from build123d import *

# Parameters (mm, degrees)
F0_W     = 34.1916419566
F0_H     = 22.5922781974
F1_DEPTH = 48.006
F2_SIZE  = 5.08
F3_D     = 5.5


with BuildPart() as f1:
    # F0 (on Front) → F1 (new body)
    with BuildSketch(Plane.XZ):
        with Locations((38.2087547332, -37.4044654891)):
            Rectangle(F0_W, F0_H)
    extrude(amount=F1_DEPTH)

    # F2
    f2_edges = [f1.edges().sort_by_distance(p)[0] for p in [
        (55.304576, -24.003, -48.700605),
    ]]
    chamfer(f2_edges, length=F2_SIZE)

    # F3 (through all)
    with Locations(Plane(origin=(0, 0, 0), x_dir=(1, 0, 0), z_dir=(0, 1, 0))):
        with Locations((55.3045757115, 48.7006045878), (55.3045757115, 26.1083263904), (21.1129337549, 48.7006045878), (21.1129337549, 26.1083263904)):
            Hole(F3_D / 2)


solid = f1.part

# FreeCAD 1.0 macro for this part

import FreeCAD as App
import Part
import Sketcher
from FreeCAD import Vector
Q = App.Units.Quantity


def edges_at(feature, points):
    """Names of the edges that pass closest to the given points."""
    edges = feature.Shape.Edges
    near = lambda p: min(range(len(edges)), key=lambda i: edges[i].distToShape(Part.Vertex(*p))[0])
    return sorted({f"Edge{near(p) + 1}" for p in points})


def add_polygon(sketch, points):
    """Adds a closed chain of lines whose ends are joined by coincident constraints."""
    first, n = sketch.GeometryCount, len(points)
    for a, b in zip(points, points[1:] + points[:1]):
        sketch.addGeometry(Part.LineSegment(App.Vector(*a, 0), App.Vector(*b, 0)), False)
    for i in range(n):
        sketch.addConstraint(Sketcher.Constraint("Coincident", first + i, 2, first + (i + 1) % n, 1))

doc = App.newDocument("Part")
body = doc.addObject("PartDesign::Body", "Body")

# Sketch on XZ plane
sketch1 = body.newObject("Sketcher::SketchObject", "Sketch")
sketch1.AttachmentSupport = (doc.getObject("XZ_Plane"), [""])
sketch1.MapMode = "FlatFace"
add_polygon(sketch1, [(21, -26), (21, -49), (55, -49), (55, -26)])  # lines 0-3
sketch1.addConstraint([
    Sketcher.Constraint("Vertical", 0),
    Sketcher.Constraint("Horizontal", 1),
    Sketcher.Constraint("Vertical", 2),
    Sketcher.Constraint("Horizontal", 3),
    Sketcher.Constraint("DistanceX", 1, 1, 1, 2, 34.191642),
    Sketcher.Constraint("DistanceY", 0, 2, 0, 1, 22.592278),
    Sketcher.Constraint("DistanceX", -1, 1, 0, 2, 21.112934),
    Sketcher.Constraint("DistanceY", 0, 2, -1, 1, 48.700605),
])
pad1 = body.newObject("PartDesign::Pad", "Pad")
pad1.Profile = sketch1
pad1.Length = Q("1.89 in")
doc.recompute()

chamfer = body.newObject("PartDesign::Chamfer", "Chamfer")
chamfer.Base = (pad1, edges_at(pad1, [(55.305, -24.003, -48.701)]))
chamfer.Size = Q("0.2 in")

# Sketch on XZ plane
sketch2 = body.newObject("Sketcher::SketchObject", "Sketch001")
sketch2.AttachmentSupport = (doc.getObject("XZ_Plane"), [""])
sketch2.MapMode = "FlatFace"
sketch2.addGeometry([
    Part.Circle(Vector(55.3, -48.7, 0), Vector(0, 0, 1), 2.8),
    Part.Circle(Vector(55.3, -26.1, 0), Vector(0, 0, 1), 2.8),
    Part.Circle(Vector(21.1, -48.7, 0), Vector(0, 0, 1), 2.8),
    Part.Circle(Vector(21.1, -26.1, 0), Vector(0, 0, 1), 2.8),
], False)
sketch2.addConstraint([
    Sketcher.Constraint("Equal", 0, 1),
    Sketcher.Constraint("Equal", 1, 2),
    Sketcher.Constraint("Equal", 2, 3),
    Sketcher.Constraint("Horizontal", 0, 3, 2, 3),
    Sketcher.Constraint("Horizontal", 1, 3, 3, 3),
    Sketcher.Constraint("Vertical", 0, 3, 1, 3),
    Sketcher.Constraint("Vertical", 2, 3, 3, 3),
    Sketcher.Constraint("Diameter", 0, 5.5),
    Sketcher.Constraint("DistanceY", 0, 3, 1, 3, 22.592278),
    Sketcher.Constraint("DistanceX", 2, 3, 0, 3, 34.191642),
    Sketcher.Constraint("DistanceX", -1, 1, 0, 3, 55.304576),
    Sketcher.Constraint("DistanceY", 0, 3, -1, 1, 48.700605),
])
doc.recompute()
hole = body.newObject("PartDesign::Hole", "Hole")
hole.Profile = sketch2
hole.ThreadType = "None"
hole.Diameter = 5.5
hole.DepthType = "ThroughAll"
hole.Reversed = True

doc.recompute()
